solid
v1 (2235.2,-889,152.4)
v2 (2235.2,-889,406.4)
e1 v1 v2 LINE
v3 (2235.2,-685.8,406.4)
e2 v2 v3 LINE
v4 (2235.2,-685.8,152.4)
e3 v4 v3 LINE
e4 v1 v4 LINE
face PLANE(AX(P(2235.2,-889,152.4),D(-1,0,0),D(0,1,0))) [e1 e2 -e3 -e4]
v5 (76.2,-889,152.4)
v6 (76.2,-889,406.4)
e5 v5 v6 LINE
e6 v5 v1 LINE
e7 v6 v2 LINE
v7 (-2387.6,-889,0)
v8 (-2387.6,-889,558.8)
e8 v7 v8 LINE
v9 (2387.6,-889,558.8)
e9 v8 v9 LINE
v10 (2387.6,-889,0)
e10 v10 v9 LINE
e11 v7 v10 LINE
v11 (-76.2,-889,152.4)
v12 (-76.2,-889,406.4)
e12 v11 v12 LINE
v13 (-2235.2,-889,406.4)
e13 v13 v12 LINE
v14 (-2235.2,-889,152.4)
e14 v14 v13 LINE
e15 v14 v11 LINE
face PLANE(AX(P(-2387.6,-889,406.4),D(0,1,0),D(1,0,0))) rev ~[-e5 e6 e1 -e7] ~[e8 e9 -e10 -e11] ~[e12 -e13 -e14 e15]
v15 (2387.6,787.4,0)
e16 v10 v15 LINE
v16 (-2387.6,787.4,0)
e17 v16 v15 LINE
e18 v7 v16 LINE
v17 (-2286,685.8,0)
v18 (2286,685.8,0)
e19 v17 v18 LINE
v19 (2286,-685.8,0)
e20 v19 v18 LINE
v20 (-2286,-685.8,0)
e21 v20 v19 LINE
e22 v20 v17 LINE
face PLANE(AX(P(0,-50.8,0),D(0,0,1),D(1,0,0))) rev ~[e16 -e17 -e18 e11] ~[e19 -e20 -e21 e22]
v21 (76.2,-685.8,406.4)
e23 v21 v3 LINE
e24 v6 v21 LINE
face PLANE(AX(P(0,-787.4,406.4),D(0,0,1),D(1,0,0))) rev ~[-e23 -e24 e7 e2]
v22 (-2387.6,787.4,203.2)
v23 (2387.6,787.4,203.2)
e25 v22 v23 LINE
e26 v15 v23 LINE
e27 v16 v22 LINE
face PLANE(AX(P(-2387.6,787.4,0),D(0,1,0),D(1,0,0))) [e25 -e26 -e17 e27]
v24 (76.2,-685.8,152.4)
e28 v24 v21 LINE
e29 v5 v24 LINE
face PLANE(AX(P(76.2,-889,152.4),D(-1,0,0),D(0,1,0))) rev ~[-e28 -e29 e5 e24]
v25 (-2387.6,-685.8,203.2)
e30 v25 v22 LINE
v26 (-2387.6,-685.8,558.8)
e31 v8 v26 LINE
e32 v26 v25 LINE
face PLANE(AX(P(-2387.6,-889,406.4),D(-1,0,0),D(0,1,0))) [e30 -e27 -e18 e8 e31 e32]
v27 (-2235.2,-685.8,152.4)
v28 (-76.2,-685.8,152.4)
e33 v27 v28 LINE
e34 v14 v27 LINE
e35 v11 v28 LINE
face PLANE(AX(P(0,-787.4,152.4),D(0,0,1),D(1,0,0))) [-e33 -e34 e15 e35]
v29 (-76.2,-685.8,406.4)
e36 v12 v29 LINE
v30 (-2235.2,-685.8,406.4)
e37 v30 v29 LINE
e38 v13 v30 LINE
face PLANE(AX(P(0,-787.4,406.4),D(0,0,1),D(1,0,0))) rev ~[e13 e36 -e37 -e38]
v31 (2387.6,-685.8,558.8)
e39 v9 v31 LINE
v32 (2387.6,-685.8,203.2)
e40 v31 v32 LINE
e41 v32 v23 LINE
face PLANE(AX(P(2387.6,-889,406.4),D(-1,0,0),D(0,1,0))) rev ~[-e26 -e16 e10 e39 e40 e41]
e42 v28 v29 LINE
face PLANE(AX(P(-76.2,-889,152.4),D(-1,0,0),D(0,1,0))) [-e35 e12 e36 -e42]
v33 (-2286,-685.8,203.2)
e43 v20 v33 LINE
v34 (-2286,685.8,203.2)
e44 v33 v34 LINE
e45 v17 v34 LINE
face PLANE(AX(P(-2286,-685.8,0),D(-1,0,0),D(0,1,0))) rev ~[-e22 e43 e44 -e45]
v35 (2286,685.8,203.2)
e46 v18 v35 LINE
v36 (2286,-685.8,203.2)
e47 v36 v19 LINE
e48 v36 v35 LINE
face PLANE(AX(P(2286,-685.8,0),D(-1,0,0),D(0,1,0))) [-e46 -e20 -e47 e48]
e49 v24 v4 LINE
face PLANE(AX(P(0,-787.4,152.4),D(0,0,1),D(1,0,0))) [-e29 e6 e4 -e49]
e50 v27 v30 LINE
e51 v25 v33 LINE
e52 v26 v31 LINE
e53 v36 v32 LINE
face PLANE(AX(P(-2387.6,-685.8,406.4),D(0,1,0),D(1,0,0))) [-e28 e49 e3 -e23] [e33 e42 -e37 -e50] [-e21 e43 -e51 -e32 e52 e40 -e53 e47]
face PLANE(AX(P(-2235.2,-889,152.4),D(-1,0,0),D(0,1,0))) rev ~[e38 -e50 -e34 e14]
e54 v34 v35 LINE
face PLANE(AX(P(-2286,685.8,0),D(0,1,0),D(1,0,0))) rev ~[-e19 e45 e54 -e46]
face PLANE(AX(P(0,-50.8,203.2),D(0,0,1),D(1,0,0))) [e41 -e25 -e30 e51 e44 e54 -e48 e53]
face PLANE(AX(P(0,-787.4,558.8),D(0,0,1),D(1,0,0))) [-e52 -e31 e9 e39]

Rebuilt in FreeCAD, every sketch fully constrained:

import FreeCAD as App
import Part
import Sketcher

V = App.Vector
Q = App.Units.Quantity


def add_polygon(sketch, points):
    """Adds a closed chain of lines whose ends are joined by coincident constraints."""
    first, n = sketch.GeometryCount, len(points)
    for a, b in zip(points, points[1:] + points[:1]):
        sketch.addGeometry(Part.LineSegment(App.Vector(*a, 0), App.Vector(*b, 0)), False)
    for i in range(n):
        sketch.addConstraint(Sketcher.Constraint("Coincident", first + i, 2, first + (i + 1) % n, 1))

doc = App.newDocument("Part")
body = doc.addObject("PartDesign::Body", "Body")

# Sketch on XY plane
sketch1 = doc.addObject("Sketcher::SketchObject", "Sketch")
body.addObject(sketch1)
sketch1.AttachmentSupport = (doc.XY_Plane, [""])
sketch1.MapMode = "FlatFace"
add_polygon(sketch1, [(-2388, 787), (-2388, -889), (2388, -889), (2388, 787)])  # lines 0-3
add_polygon(sketch1, [(2286, -686), (-2286, -686), (-2286, 686), (2286, 686)])  # lines 4-7
sketch1.addConstraint(Sketcher.Constraint("Vertical", 0))
sketch1.addConstraint(Sketcher.Constraint("Horizontal", 1))
sketch1.addConstraint(Sketcher.Constraint("Vertical", 2))
sketch1.addConstraint(Sketcher.Constraint("Horizontal", 3))
sketch1.addConstraint(Sketcher.Constraint("Horizontal", 4))
sketch1.addConstraint(Sketcher.Constraint("Vertical", 5))
sketch1.addConstraint(Sketcher.Constraint("Horizontal", 6))
sketch1.addConstraint(Sketcher.Constraint("Vertical", 7))
sketch1.addConstraint(Sketcher.Constraint("Symmetric", 4, 2, 6, 2, -1, 1))
sketch1.addConstraint(Sketcher.Constraint("DistanceX", 1, 1, 1, 2, Q("188 in")))
sketch1.addConstraint(Sketcher.Constraint("DistanceX", 4, 2, 4, 1, Q("180 in")))
sketch1.addConstraint(Sketcher.Constraint("DistanceY", 0, 2, 0, 1, Q("66 in")))
sketch1.addConstraint(Sketcher.Constraint("DistanceY", 5, 1, 5, 2, Q("54 in")))
sketch1.addConstraint(Sketcher.Constraint("DistanceX", 0, 2, -1, 1, Q("94 in")))
sketch1.addConstraint(Sketcher.Constraint("DistanceY", 0, 2, -1, 1, Q("35 in")))
pad1 = doc.addObject("PartDesign::Pad", "Pad")
body.addObject(pad1)
pad1.Profile = sketch1
pad1.Length = Q("8 in")

# Sketch on XY plane
sketch2 = doc.addObject("Sketcher::SketchObject", "Sketch001")
body.addObject(sketch2)
sketch2.AttachmentSupport = (doc.XY_Plane, [""])
sketch2.MapMode = "FlatFace"
sketch2.AttachmentOffset = App.Placement(V(0, 0, 8 * 25.4), App.Rotation())
add_polygon(sketch2, [(-2388, -686), (-2388, -889), (2388, -889), (2388, -686)])  # lines 0-3
sketch2.addConstraint(Sketcher.Constraint("Vertical", 0))
sketch2.addConstraint(Sketcher.Constraint("Horizontal", 1))
sketch2.addConstraint(Sketcher.Constraint("Vertical", 2))
sketch2.addConstraint(Sketcher.Constraint("Horizontal", 3))
sketch2.addConstraint(Sketcher.Constraint("DistanceX", 1, 1, 1, 2, Q("188 in")))
sketch2.addConstraint(Sketcher.Constraint("DistanceY", 0, 2, 0, 1, Q("8 in")))
sketch2.addConstraint(Sketcher.Constraint("DistanceX", 0, 2, -1, 1, Q("94 in")))
sketch2.addConstraint(Sketcher.Constraint("DistanceY", 0, 2, -1, 1, Q("35 in")))
pocket1 = doc.addObject("PartDesign::Pocket", "Pocket")
body.addObject(pocket1)
pocket1.Profile = sketch2
pocket1.Length = Q("2 in")

# Sketch on XY plane
sketch3 = doc.addObject("Sketcher::SketchObject", "Sketch002")
body.addObject(sketch3)
sketch3.AttachmentSupport = (doc.XY_Plane, [""])
sketch3.MapMode = "FlatFace"
sketch3.AttachmentOffset = App.Placement(V(0, 0, 6 * 25.4), App.Rotation())
add_polygon(sketch3, [(-2388, -686), (-2388, -889), (-2235, -889), (-2235, -686)])  # lines 0-3
add_polygon(sketch3, [(2235, -686), (2235, -889), (2388, -889), (2388, -686)])  # lines 4-7
add_polygon(sketch3, [(-76, -686), (-76, -889), (76, -889), (76, -686)])  # lines 8-11
sketch3.addConstraint(Sketcher.Constraint("Vertical", 0))
sketch3.addConstraint(Sketcher.Constraint("Horizontal", 1))
sketch3.addConstraint(Sketcher.Constraint("Vertical", 2))
sketch3.addConstraint(Sketcher.Constraint("Horizontal", 3))
sketch3.addConstraint(Sketcher.Constraint("Vertical", 4))
sketch3.addConstraint(Sketcher.Constraint("Horizontal", 5))
sketch3.addConstraint(Sketcher.Constraint("Vertical", 6))
sketch3.addConstraint(Sketcher.Constraint("Horizontal", 7))
sketch3.addConstraint(Sketcher.Constraint("Vertical", 8))
sketch3.addConstraint(Sketcher.Constraint("Horizontal", 9))
sketch3.addConstraint(Sketcher.Constraint("Vertical", 10))
sketch3.addConstraint(Sketcher.Constraint("Horizontal", 11))
sketch3.addConstraint(Sketcher.Constraint("Symmetric", 1, 2, 4, 2, -2))
sketch3.addConstraint(Sketcher.Constraint("Symmetric", 3, 2, 6, 2, -2))
sketch3.addConstraint(Sketcher.Constraint("Horizontal", 5, 2, 8, 2))
sketch3.addConstraint(Sketcher.Constraint("Horizontal", 7, 2, 10, 2))
sketch3.addConstraint(Sketcher.Constraint("Equal", 7, 9))
sketch3.addConstraint(Sketcher.Constraint("DistanceX", 1, 1, 1, 2, Q("6 in")))
sketch3.addConstraint(Sketcher.Constraint("DistanceY", 0, 2, 0, 1, Q("8 in")))
sketch3.addConstraint(Sketcher.Constraint("DistanceX", 0, 2, -1, 1, Q("94 in")))
sketch3.addConstraint(Sketcher.Constraint("DistanceY", 0, 2, -1, 1, Q("35 in")))
sketch3.addConstraint(Sketcher.Constraint("DistanceX", 8, 2, -1, 1, Q("3 in")))
pad2 = doc.addObject("PartDesign::Pad", "Pad001")
body.addObject(pad2)
pad2.Profile = sketch3
pad2.Length = Q("10 in")

# Sketch on XY plane
sketch4 = doc.addObject("Sketcher::SketchObject", "Sketch003")
body.addObject(sketch4)
sketch4.AttachmentSupport = (doc.XY_Plane, [""])
sketch4.MapMode = "FlatFace"
sketch4.AttachmentOffset = App.Placement(V(0, 0, 16 * 25.4), App.Rotation())
add_polygon(sketch4, [(-2388, -686), (-2388, -889), (2388, -889), (2388, -686)])  # lines 0-3
sketch4.addConstraint(Sketcher.Constraint("Vertical", 0))
sketch4.addConstraint(Sketcher.Constraint("Horizontal", 1))
sketch4.addConstraint(Sketcher.Constraint("Vertical", 2))
sketch4.addConstraint(Sketcher.Constraint("Horizontal", 3))
sketch4.addConstraint(Sketcher.Constraint("DistanceX", 1, 1, 1, 2, Q("188 in")))
sketch4.addConstraint(Sketcher.Constraint("DistanceY", 0, 2, 0, 1, Q("8 in")))
sketch4.addConstraint(Sketcher.Constraint("DistanceX", 0, 2, -1, 1, Q("94 in")))
sketch4.addConstraint(Sketcher.Constraint("DistanceY", 0, 2, -1, 1, Q("35 in")))
pad3 = doc.addObject("PartDesign::Pad", "Pad002")
body.addObject(pad3)
pad3.Profile = sketch4
pad3.Length = Q("6 in")

doc.recompute()
